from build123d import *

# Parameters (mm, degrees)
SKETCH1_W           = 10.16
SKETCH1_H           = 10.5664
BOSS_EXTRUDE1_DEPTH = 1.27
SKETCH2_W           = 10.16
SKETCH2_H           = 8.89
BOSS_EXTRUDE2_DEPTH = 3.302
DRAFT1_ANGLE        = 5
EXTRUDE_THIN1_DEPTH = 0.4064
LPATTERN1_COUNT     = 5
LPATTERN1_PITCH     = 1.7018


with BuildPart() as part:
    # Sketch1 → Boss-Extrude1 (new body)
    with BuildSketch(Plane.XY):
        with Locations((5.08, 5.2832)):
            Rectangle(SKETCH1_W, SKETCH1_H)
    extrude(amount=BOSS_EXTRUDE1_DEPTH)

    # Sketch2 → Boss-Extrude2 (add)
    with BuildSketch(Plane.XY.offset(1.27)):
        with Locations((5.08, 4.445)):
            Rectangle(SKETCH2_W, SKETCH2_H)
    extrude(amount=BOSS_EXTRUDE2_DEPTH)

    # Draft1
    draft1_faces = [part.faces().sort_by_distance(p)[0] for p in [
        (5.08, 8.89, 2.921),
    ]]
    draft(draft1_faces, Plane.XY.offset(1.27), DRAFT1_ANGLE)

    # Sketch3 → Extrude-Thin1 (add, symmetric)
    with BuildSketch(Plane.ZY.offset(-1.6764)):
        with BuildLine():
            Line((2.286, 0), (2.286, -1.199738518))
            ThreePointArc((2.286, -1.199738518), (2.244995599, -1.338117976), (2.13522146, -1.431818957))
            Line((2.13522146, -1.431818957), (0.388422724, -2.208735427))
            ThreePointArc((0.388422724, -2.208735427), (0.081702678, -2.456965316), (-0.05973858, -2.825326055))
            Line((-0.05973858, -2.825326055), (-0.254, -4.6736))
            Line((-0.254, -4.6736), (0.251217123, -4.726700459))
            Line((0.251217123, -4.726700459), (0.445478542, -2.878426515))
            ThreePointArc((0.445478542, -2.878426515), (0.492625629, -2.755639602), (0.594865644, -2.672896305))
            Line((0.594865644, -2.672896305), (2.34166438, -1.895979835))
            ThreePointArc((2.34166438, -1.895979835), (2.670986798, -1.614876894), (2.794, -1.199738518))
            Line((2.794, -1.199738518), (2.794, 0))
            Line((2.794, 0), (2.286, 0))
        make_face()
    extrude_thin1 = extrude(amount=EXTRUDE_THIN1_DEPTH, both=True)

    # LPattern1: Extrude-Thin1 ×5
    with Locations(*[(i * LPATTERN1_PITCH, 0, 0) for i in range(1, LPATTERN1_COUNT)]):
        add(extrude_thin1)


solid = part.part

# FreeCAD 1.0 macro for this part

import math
import FreeCAD as App
import Part
import Sketcher

V = App.Vector
Q = App.Units.Quantity


def faces_at(feature, points):
    """Names of the faces that lie closest to the given points."""
    faces = feature.Shape.Faces
    near = lambda p: min(range(len(faces)), key=lambda i: faces[i].distToShape(Part.Vertex(*p))[0])
    return sorted({f"Face{near(p) + 1}" for p in points})


def add_polygon(sketch, points):
    """Adds a closed chain of lines whose ends are joined by coincident constraints."""
    first, n = sketch.GeometryCount, len(points)
    for a, b in zip(points, points[1:] + points[:1]):
        sketch.addGeometry(Part.LineSegment(App.Vector(*a, 0), App.Vector(*b, 0)), False)
    for i in range(n):
        sketch.addConstraint(Sketcher.Constraint("Coincident", first + i, 2, first + (i + 1) % n, 1))

doc = App.newDocument("Part")
params = doc.addObject("Spreadsheet::Sheet", "Params")
for row, (alias, value) in enumerate([
    ("sketch1_width", "0.4 in"),
    ("sketch1_height", "0.416 in"),
    ("pad1_length", "0.05 in"),
    ("sketch2_width", "0.4 in"),
    ("sketch2_height", "0.35 in"),
    ("pad2_length", "0.13 in"),
    ("draft_angle", "5 deg"),
    ("sketch3_radius", "0.01 in"),
    ("sketch3_radius2", "0.03 in"),
    ("pad3_length", "0.032 in"),
    ("linearpattern_pitch", "0.067 in"),
], start=1):
    params.set(f"A{row}", alias)
    params.set(f"B{row}", "=" + value)
    params.setAlias(f"B{row}", alias)

body = doc.addObject("PartDesign::Body", "Body")

# Sketch on XY plane
sketch1 = body.newObject("Sketcher::SketchObject", "Sketch")
sketch1.AttachmentSupport = (doc.getObject("XY_Plane"), [""])
sketch1.MapMode = "FlatFace"
add_polygon(sketch1, [(0, 11), (0, 0), (10, 0), (10, 11)])  # lines 0-3
sketch1.addConstraint(Sketcher.Constraint("Vertical", 0))
sketch1.addConstraint(Sketcher.Constraint("Horizontal", 1))
sketch1.addConstraint(Sketcher.Constraint("Vertical", 2))
sketch1.addConstraint(Sketcher.Constraint("Horizontal", 3))
sketch1.addConstraint(Sketcher.Constraint("Coincident", 0, 2, -1, 1))
sketch1.addConstraint(Sketcher.Constraint("DistanceX", 1, 1, 1, 2, Q("0.4 in")))
sketch1.addConstraint(Sketcher.Constraint("DistanceY", 0, 2, 0, 1, Q("0.416 in")))
sketch1.setExpression("Constraints[9]", "Params.sketch1_width")
sketch1.setExpression("Constraints[10]", "Params.sketch1_height")
pad1 = body.newObject("PartDesign::Pad", "Pad")
pad1.Profile = sketch1
pad1.setExpression("Length", "Params.pad1_length")

# Sketch on XY plane
sketch2 = body.newObject("Sketcher::SketchObject", "Sketch001")
sketch2.AttachmentSupport = (doc.getObject("XY_Plane"), [""])
sketch2.MapMode = "FlatFace"
sketch2.AttachmentOffset = App.Placement(V(0, 0, 0.05 * 25.4), App.Rotation())
add_polygon(sketch2, [(0, 9), (0, 0), (10, 0), (10, 9)])  # lines 0-3
sketch2.addConstraint(Sketcher.Constraint("Vertical", 0))
sketch2.addConstraint(Sketcher.Constraint("Horizontal", 1))
sketch2.addConstraint(Sketcher.Constraint("Vertical", 2))
sketch2.addConstraint(Sketcher.Constraint("Horizontal", 3))
sketch2.addConstraint(Sketcher.Constraint("Coincident", 0, 2, -1, 1))
sketch2.addConstraint(Sketcher.Constraint("DistanceX", 1, 1, 1, 2, Q("0.4 in")))
sketch2.addConstraint(Sketcher.Constraint("DistanceY", 0, 2, 0, 1, Q("0.35 in")))
sketch2.setExpression("Constraints[9]", "Params.sketch2_width")
sketch2.setExpression("Constraints[10]", "Params.sketch2_height")
pad2 = body.newObject("PartDesign::Pad", "Pad001")
pad2.Profile = sketch2
pad2.setExpression("Length", "Params.pad2_length")
doc.recompute()

datumplane = body.newObject("PartDesign::Plane", "DatumPlane")
datumplane.AttachmentSupport = (doc.getObject("XY_Plane"), [""])
datumplane.MapMode = "FlatFace"
datumplane.AttachmentOffset = App.Placement(V(0, 0, 0.05 * 25.4), App.Rotation())
draft = body.newObject("PartDesign::Draft", "Draft")
draft.Base = (pad2, faces_at(pad2, [(5.08, 8.89, 2.921)]))
draft.NeutralPlane = (datumplane, [""])
draft.setExpression("Angle", "Params.draft_angle")
draft.Reversed = False

# Sketch on YZ plane
sketch3 = body.newObject("Sketcher::SketchObject", "Sketch002")
sketch3.AttachmentSupport = (doc.getObject("YZ_Plane"), [""])
sketch3.MapMode = "FlatFace"
sketch3.AttachmentOffset = App.Placement(V(0, 0, 0.066 * 25.4), App.Rotation())
sketch3.addGeometry(Part.LineSegment(V(0, 2.29, 0), V(-1.2, 2.29, 0)), False)
sketch3.addGeometry(Part.ArcOfCircle(Part.Circle(V(-1.2, 2.03, 0), V(0, 0, 1), 0.25), math.radians(90), math.radians(156)), False)
sketch3.addGeometry(Part.LineSegment(V(-1.43, 2.14, 0), V(-2.21, 0.39, 0)), False)
sketch3.addGeometry(Part.ArcOfCircle(Part.Circle(V(-2.9, 0.7, 0), V(0, 0, 1), 0.76), math.radians(-84), math.radians(-24)), False)
sketch3.addGeometry(Part.LineSegment(V(-2.83, -0.06, 0), V(-4.67, -0.25, 0)), False)
sketch3.addGeometry(Part.LineSegment(V(-4.67, -0.25, 0), V(-4.73, 0.25, 0)), False)
sketch3.addGeometry(Part.LineSegment(V(-4.73, 0.25, 0), V(-2.88, 0.45, 0)), False)
sketch3.addGeometry(Part.ArcOfCircle(Part.Circle(V(-2.9, 0.7, 0), V(0, 0, 1), 0.25), math.radians(-84), math.radians(-24)), False)
sketch3.addGeometry(Part.LineSegment(V(-2.67, 0.59, 0), V(-1.9, 2.34, 0)), False)
sketch3.addGeometry(Part.ArcOfCircle(Part.Circle(V(-1.2, 2.03, 0), V(0, 0, 1), 0.76), math.radians(90), math.radians(156)), False)
sketch3.addGeometry(Part.LineSegment(V(-1.2, 2.79, 0), V(0, 2.79, 0)), False)
sketch3.addGeometry(Part.LineSegment(V(0, 2.79, 0), V(0, 2.29, 0)), False)
sketch3.addConstraint(Sketcher.Constraint("Tangent", 0, 2, 1, 1))
sketch3.addConstraint(Sketcher.Constraint("Tangent", 1, 2, 2, 1))
sketch3.addConstraint(Sketcher.Constraint("Tangent", 2, 2, 3, 2))
sketch3.addConstraint(Sketcher.Constraint("Tangent", 3, 1, 4, 1))
sketch3.addConstraint(Sketcher.Constraint("Coincident", 4, 2, 5, 1))
sketch3.addConstraint(Sketcher.Constraint("Coincident", 5, 2, 6, 1))
sketch3.addConstraint(Sketcher.Constraint("Tangent", 6, 2, 7, 1))
sketch3.addConstraint(Sketcher.Constraint("Tangent", 7, 2, 8, 1))
sketch3.addConstraint(Sketcher.Constraint("Tangent", 8, 2, 9, 2))
sketch3.addConstraint(Sketcher.Constraint("Tangent", 9, 1, 10, 1))
sketch3.addConstraint(Sketcher.Constraint("Coincident", 10, 2, 11, 1))
sketch3.addConstraint(Sketcher.Constraint("Coincident", 11, 2, 0, 1))
sketch3.addConstraint(Sketcher.Constraint("Horizontal", 0))
sketch3.addConstraint(Sketcher.Constraint("Horizontal", 10))
sketch3.addConstraint(Sketcher.Constraint("Vertical", 11))
sketch3.addConstraint(Sketcher.Constraint("Coincident", 7, 3, 3, 3))
sketch3.addConstraint(Sketcher.Constraint("Coincident", 9, 3, 1, 3))
sketch3.addConstraint(Sketcher.Constraint("Equal", 1, 7))
sketch3.addConstraint(Sketcher.Constraint("Equal", 3, 9))
sketch3.addConstraint(Sketcher.Constraint("PointOnObject", 10, 2, -2))
sketch3.addConstraint(Sketcher.Constraint("Perpendicular", 4, 5))
sketch3.addConstraint(Sketcher.Constraint("Perpendicular", 5, 6))
sketch3.addConstraint(Sketcher.Constraint("Radius", 1, Q("0.01 in")))
sketch3.addConstraint(Sketcher.Constraint("Radius", 3, Q("0.03 in")))
sketch3.addConstraint(Sketcher.Constraint("Angle", 4, Q("-174 deg")))
sketch3.addConstraint(Sketcher.Constraint("DistanceY", -1, 1, 1, 3, Q("0.08 in")))
sketch3.addConstraint(Sketcher.Constraint("DistanceY", 4, 2, -1, 1, Q("0.01 in")))
sketch3.addConstraint(Sketcher.Constraint("DistanceX", 4, 2, -1, 1, Q("0.184 in")))
sketch3.addConstraint(Sketcher.Constraint("DistanceX", 0, 2, 0, 1, 1.199739))
sketch3.addConstraint(Sketcher.Constraint("DistanceY", 2, 2, 1, 2, 1.746799))
sketch3.setExpression("Constraints[22]", "Params.sketch3_radius")
sketch3.setExpression("Constraints[23]", "Params.sketch3_radius2")
pad3 = body.newObject("PartDesign::Pad", "Pad002")
pad3.Profile = sketch3
pad3.setExpression("Length", "Params.pad3_length")
pad3.Midplane = True
doc.recompute()

linearpattern = body.newObject("PartDesign::LinearPattern", "LinearPattern")
linearpattern.Originals = [pad3]
linearpattern.Direction = (doc.getObject("X_Axis"), [""])
linearpattern.Mode = "offset"
linearpattern.setExpression("Offset", "Params.linearpattern_pitch")
linearpattern.Occurrences = 5
body.Tip = linearpattern

doc.recompute()
